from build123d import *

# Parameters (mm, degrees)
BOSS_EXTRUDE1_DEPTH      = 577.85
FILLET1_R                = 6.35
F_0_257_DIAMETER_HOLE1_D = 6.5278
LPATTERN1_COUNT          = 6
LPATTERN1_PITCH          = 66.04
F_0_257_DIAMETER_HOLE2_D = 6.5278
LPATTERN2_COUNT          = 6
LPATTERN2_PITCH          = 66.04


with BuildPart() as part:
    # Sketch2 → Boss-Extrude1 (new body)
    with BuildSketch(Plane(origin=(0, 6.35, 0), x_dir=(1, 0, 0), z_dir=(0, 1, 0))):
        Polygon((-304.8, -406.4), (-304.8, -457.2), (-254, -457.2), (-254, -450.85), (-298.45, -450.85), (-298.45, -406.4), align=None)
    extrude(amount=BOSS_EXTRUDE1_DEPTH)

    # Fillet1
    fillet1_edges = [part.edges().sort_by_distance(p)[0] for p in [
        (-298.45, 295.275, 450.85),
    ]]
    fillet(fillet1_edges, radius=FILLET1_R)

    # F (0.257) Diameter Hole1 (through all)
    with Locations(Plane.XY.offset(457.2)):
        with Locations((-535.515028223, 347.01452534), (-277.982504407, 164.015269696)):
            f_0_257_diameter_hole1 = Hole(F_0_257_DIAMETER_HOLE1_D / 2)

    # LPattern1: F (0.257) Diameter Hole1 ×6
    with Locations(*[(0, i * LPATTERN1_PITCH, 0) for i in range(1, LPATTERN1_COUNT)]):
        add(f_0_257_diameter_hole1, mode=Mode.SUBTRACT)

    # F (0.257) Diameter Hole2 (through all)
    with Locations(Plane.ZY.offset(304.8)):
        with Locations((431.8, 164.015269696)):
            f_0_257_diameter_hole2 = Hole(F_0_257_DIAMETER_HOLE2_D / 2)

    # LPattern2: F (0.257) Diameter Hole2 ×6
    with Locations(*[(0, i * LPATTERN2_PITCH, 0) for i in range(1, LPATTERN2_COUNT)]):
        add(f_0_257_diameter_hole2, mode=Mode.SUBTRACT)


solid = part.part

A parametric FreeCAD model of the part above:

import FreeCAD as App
import Part
import Sketcher

V = App.Vector
Q = App.Units.Quantity


def edges_at(feature, points):
    """Names of the edges that pass closest to the given points."""
    edges = feature.Shape.Edges
    near = lambda p: min(range(len(edges)), key=lambda i: edges[i].distToShape(Part.Vertex(*p))[0])
    return sorted({f"Edge{near(p) + 1}" for p in points})

doc = App.newDocument("Part")
body = doc.addObject("PartDesign::Body", "Body")

# Sketch on XZ plane
sketch1 = doc.addObject("Sketcher::SketchObject", "Sketch")
body.addObject(sketch1)
sketch1.AttachmentSupport = (doc.XZ_Plane, [""])
sketch1.MapMode = "FlatFace"
sketch1.AttachmentOffset = App.Placement(V(0, 0, -0.25 * 25.4), App.Rotation())
sketch1.addGeometry(Part.LineSegment(V(-305, 406, 0), V(-305, 457, 0)), False)
sketch1.addGeometry(Part.LineSegment(V(-305, 457, 0), V(-254, 457, 0)), False)
sketch1.addGeometry(Part.LineSegment(V(-254, 457, 0), V(-254, 451, 0)), False)
sketch1.addGeometry(Part.LineSegment(V(-254, 451, 0), V(-298, 451, 0)), False)
sketch1.addGeometry(Part.LineSegment(V(-298, 451, 0), V(-298, 406, 0)), False)
sketch1.addGeometry(Part.LineSegment(V(-298, 406, 0), V(-305, 406, 0)), False)
sketch1.addConstraint(Sketcher.Constraint("Coincident", 0, 2, 1, 1))
sketch1.addConstraint(Sketcher.Constraint("Coincident", 1, 2, 2, 1))
sketch1.addConstraint(Sketcher.Constraint("Coincident", 2, 2, 3, 1))
sketch1.addConstraint(Sketcher.Constraint("Coincident", 3, 2, 4, 1))
sketch1.addConstraint(Sketcher.Constraint("Coincident", 4, 2, 5, 1))
sketch1.addConstraint(Sketcher.Constraint("Coincident", 5, 2, 0, 1))
sketch1.addConstraint(Sketcher.Constraint("Vertical", 0))
sketch1.addConstraint(Sketcher.Constraint("Horizontal", 1))
sketch1.addConstraint(Sketcher.Constraint("Vertical", 2))
sketch1.addConstraint(Sketcher.Constraint("Horizontal", 3))
sketch1.addConstraint(Sketcher.Constraint("Vertical", 4))
sketch1.addConstraint(Sketcher.Constraint("Horizontal", 5))
sketch1.addConstraint(Sketcher.Constraint("Equal", 1, 0))
sketch1.addConstraint(Sketcher.Constraint("Equal", 5, 2))
sketch1.addConstraint(Sketcher.Constraint("DistanceX", 1, 1, 1, 2, Q("2 in")))
sketch1.addConstraint(Sketcher.Constraint("DistanceX", 0, 2, -1, 1, Q("12 in")))
sketch1.addConstraint(Sketcher.Constraint("DistanceY", -1, 1, 0, 2, Q("18 in")))
sketch1.addConstraint(Sketcher.Constraint("DistanceX", 3, 2, 3, 1, Q("1.75 in")))
pad1 = doc.addObject("PartDesign::Pad", "Pad")
body.addObject(pad1)
pad1.Profile = sketch1
pad1.Length = Q("22.75 in")
pad1.Reversed = True
doc.recompute()

fillet = doc.addObject("PartDesign::Fillet", "Fillet")
body.addObject(fillet)
fillet.Base = (pad1, edges_at(pad1, [(-298.45, 295.275, 450.85)]))
fillet.Radius = Q("0.25 in")

# Sketch on XY plane
sketch2 = doc.addObject("Sketcher::SketchObject", "Sketch001")
body.addObject(sketch2)
sketch2.AttachmentSupport = (doc.XY_Plane, [""])
sketch2.MapMode = "FlatFace"
sketch2.AttachmentOffset = App.Placement(V(0, 0, 18 * 25.4), App.Rotation())
sketch2.addGeometry(Part.Circle(V(-535.5, 347, 0), V(0, 0, 1), 3.3), False)
sketch2.addGeometry(Part.Circle(V(-278, 164, 0), V(0, 0, 1), 3.3), False)
sketch2.addConstraint(Sketcher.Constraint("Equal", 0, 1))
sketch2.addConstraint(Sketcher.Constraint("Diameter", 0, Q("0.257 in")))
sketch2.addConstraint(Sketcher.Constraint("DistanceX", 0, 3, -1, 1, Q("535.515028 mm")))
sketch2.addConstraint(Sketcher.Constraint("DistanceY", -1, 1, 1, 3, Q("164.01527 mm")))
sketch2.addConstraint(Sketcher.Constraint("DistanceY", -1, 1, 0, 3, Q("347.014525 mm")))
sketch2.addConstraint(Sketcher.Constraint("DistanceX", 1, 3, -1, 1, Q("277.982504 mm")))
doc.recompute()
hole = doc.addObject("PartDesign::Hole", "Hole")
body.addObject(hole)
hole.Profile = sketch2
hole.ThreadType = "None"
hole.Diameter = Q("0.257 in")
hole.DepthType = "ThroughAll"
doc.recompute()

linearpattern = doc.addObject("PartDesign::LinearPattern", "LinearPattern")
body.addObject(linearpattern)
linearpattern.Originals = [hole]
linearpattern.Direction = (doc.Y_Axis, [""])
linearpattern.Mode = "offset"
linearpattern.Offset = Q("2.6 in")
linearpattern.Occurrences = 6
body.Tip = linearpattern

# Sketch on YZ plane
sketch3 = doc.addObject("Sketcher::SketchObject", "Sketch002")
body.addObject(sketch3)
sketch3.AttachmentSupport = (doc.YZ_Plane, [""])
sketch3.MapMode = "FlatFace"
sketch3.AttachmentOffset = App.Placement(V(0, 0, -12 * 25.4), App.Rotation())
sketch3.addGeometry(Part.Circle(V(164, 431.8, 0), V(0, 0, 1), 3.3), False)
sketch3.addConstraint(Sketcher.Constraint("Diameter", 0, Q("0.257 in")))
sketch3.addConstraint(Sketcher.Constraint("DistanceY", -1, 1, 0, 3, Q("17 in")))
sketch3.addConstraint(Sketcher.Constraint("DistanceX", -1, 1, 0, 3, Q("164.01527 mm")))
doc.recompute()
hole2 = doc.addObject("PartDesign::Hole", "Hole001")
body.addObject(hole2)
hole2.Profile = sketch3
hole2.ThreadType = "None"
hole2.Diameter = Q("0.257 in")
hole2.DepthType = "ThroughAll"
hole2.Reversed = True
doc.recompute()

linearpattern2 = doc.addObject("PartDesign::LinearPattern", "LinearPattern001")
body.addObject(linearpattern2)
linearpattern2.Originals = [hole2]
linearpattern2.Direction = (doc.Y_Axis, [""])
linearpattern2.Mode = "offset"
linearpattern2.Offset = Q("2.6 in")
linearpattern2.Occurrences = 6
body.Tip = linearpattern2

doc.recompute()
